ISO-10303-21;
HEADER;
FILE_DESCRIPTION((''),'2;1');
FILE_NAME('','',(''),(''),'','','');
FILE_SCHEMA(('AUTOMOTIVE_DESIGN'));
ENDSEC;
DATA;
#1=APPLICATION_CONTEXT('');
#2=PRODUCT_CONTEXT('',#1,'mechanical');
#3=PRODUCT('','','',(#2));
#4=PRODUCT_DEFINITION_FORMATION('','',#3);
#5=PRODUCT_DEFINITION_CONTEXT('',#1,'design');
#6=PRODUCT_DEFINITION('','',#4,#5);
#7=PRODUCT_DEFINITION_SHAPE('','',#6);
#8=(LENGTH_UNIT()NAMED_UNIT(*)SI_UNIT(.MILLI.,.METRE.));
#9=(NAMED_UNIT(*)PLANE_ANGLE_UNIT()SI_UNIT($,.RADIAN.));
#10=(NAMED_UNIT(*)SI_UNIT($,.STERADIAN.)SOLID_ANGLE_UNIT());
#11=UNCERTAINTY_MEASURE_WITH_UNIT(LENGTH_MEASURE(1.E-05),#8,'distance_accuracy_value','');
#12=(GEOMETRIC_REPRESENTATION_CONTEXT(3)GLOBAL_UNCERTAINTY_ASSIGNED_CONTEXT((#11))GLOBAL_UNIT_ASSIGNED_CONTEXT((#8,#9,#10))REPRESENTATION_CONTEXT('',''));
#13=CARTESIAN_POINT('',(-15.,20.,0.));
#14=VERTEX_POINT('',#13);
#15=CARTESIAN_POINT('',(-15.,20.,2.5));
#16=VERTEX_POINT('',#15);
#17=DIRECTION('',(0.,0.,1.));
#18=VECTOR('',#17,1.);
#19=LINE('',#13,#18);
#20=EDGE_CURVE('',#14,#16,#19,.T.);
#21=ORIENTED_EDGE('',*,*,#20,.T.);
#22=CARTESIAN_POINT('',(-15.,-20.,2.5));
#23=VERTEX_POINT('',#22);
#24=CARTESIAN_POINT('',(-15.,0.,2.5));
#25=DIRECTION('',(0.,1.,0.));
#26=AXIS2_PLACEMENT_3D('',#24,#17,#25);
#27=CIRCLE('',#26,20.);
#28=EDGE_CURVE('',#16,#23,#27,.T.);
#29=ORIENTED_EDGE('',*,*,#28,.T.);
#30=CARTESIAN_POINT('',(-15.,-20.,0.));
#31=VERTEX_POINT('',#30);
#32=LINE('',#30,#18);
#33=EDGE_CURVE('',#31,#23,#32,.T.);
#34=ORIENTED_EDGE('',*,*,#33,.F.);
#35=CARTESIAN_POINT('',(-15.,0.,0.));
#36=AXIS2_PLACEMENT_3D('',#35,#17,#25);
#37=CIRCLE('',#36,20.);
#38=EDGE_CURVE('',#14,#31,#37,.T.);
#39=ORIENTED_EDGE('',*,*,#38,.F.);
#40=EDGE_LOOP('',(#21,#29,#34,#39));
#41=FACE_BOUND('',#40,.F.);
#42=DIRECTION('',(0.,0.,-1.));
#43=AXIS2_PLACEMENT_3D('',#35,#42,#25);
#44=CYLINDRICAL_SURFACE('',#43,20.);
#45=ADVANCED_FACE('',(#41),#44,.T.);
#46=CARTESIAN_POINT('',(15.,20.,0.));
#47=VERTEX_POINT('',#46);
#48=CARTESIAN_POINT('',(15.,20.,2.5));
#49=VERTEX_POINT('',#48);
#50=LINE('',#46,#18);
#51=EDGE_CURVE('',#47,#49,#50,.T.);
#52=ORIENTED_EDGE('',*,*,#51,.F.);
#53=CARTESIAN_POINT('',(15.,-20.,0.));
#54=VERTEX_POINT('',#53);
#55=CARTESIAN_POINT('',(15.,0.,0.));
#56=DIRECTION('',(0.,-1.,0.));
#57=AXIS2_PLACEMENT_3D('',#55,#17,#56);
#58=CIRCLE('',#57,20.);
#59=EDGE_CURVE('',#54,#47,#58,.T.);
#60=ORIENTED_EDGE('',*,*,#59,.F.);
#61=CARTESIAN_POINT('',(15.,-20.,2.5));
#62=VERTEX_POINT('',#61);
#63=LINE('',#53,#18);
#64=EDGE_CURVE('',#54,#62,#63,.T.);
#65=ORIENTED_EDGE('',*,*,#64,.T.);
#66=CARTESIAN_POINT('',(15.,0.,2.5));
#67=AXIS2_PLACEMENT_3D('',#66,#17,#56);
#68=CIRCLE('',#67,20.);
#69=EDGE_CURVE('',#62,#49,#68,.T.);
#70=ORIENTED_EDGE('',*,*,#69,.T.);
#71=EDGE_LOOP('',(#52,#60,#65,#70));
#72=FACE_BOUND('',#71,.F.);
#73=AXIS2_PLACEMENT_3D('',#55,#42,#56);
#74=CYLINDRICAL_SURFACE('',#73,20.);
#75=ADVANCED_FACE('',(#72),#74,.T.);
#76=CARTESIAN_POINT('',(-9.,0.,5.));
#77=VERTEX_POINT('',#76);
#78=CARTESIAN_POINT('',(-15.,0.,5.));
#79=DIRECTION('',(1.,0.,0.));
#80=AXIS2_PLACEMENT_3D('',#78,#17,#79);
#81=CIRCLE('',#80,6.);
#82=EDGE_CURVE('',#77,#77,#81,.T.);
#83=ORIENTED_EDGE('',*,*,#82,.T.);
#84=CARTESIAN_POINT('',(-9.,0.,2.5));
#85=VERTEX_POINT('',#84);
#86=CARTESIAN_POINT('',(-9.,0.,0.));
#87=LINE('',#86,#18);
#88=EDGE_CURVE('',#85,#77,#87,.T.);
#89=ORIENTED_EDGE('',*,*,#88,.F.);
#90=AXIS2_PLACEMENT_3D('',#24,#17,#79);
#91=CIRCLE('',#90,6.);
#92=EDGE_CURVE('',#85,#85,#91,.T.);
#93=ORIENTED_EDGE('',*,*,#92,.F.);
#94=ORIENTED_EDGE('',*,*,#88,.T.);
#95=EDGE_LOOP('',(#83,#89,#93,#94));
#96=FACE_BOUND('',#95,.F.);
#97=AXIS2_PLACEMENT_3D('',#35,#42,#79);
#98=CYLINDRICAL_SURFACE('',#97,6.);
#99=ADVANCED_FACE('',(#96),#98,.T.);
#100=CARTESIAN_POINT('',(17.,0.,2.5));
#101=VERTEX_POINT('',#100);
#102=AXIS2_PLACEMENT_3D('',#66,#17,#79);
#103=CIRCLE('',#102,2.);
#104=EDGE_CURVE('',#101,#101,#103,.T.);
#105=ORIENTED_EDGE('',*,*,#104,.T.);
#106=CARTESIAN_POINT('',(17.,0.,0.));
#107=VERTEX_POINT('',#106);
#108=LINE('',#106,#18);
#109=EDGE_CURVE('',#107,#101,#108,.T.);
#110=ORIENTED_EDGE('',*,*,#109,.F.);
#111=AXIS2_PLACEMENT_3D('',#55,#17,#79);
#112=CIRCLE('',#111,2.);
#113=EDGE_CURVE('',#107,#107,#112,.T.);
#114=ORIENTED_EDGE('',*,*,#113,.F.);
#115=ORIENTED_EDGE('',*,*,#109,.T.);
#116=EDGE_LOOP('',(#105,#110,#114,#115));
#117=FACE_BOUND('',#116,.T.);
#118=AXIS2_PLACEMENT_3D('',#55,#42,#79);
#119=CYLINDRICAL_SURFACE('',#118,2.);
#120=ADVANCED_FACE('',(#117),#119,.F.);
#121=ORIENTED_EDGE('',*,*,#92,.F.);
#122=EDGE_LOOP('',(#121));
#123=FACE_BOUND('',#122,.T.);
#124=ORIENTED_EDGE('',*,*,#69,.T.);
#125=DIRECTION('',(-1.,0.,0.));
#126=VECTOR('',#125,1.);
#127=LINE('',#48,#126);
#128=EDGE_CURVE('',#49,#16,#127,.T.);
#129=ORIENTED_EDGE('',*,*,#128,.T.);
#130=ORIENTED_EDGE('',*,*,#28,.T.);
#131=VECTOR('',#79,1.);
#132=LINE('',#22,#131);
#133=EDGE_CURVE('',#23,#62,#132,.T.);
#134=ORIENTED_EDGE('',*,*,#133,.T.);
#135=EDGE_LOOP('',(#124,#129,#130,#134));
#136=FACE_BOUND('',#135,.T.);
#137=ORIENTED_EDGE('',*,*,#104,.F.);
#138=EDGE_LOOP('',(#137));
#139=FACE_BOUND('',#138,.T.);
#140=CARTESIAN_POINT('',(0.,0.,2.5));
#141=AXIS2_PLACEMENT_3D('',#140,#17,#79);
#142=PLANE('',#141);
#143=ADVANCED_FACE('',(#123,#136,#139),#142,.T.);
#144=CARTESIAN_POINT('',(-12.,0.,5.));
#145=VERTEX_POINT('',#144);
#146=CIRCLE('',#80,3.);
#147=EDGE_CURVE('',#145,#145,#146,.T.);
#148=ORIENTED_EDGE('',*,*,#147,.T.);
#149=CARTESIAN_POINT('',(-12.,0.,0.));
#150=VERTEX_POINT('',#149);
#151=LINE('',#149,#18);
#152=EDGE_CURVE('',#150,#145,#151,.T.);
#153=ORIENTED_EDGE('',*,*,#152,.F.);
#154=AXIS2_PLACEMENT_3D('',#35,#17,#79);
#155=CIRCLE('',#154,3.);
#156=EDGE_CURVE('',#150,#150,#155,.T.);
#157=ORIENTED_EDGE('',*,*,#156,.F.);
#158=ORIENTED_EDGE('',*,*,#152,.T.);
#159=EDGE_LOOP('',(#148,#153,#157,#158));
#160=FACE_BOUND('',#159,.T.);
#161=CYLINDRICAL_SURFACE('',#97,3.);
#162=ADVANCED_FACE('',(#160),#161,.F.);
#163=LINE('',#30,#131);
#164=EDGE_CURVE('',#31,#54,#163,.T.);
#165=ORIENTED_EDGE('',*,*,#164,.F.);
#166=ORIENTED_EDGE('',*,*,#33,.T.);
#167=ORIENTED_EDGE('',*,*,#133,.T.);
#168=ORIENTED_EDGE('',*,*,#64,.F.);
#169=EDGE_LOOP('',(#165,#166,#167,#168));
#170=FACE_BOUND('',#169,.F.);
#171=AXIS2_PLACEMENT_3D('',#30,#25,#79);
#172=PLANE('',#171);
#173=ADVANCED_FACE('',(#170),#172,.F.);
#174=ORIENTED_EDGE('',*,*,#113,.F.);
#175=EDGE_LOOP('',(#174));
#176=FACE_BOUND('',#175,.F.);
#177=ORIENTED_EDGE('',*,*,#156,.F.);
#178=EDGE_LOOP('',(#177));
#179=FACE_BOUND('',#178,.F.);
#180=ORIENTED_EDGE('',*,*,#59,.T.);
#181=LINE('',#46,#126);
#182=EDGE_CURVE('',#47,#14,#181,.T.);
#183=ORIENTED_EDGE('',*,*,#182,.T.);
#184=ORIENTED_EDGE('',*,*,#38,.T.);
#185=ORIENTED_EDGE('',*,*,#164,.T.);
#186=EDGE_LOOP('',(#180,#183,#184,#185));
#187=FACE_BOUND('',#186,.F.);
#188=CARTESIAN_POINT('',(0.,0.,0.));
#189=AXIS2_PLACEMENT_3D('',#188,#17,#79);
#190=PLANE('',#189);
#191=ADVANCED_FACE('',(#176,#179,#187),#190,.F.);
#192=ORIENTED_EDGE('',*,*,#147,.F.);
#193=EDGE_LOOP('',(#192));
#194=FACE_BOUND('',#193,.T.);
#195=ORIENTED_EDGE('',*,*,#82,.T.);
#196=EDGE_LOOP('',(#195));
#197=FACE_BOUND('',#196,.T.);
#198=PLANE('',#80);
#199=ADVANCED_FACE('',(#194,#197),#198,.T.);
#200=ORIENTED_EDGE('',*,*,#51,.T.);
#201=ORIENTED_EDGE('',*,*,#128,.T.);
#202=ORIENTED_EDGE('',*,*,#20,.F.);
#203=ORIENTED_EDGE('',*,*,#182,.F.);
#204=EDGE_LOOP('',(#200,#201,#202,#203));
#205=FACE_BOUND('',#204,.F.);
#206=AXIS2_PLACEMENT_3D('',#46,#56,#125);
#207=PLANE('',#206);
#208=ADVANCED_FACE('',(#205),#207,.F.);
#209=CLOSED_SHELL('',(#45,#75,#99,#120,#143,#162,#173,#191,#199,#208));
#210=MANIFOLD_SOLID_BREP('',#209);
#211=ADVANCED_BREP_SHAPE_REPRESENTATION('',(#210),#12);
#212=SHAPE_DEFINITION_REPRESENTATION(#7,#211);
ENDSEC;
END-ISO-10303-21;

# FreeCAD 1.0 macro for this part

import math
import FreeCAD as App
import Part
import Sketcher

V = App.Vector

doc = App.newDocument("Part")
params = doc.addObject("Spreadsheet::Sheet", "Params")
for row, (alias, value) in enumerate([
    ("sketch1_diameter", "12 mm"),
    ("sketch1_diameter2", "4 mm"),
    ("sketch1_radius", "20 mm"),
    ("sketch1_width", "30 mm"),
    ("pad1_length", "2.5 mm"),
    ("sketch2_diameter", "12 mm"),
    ("sketch2_diameter2", "6 mm"),
    ("pad2_length", "5 mm"),
], start=1):
    params.set(f"A{row}", alias)
    params.set(f"B{row}", "=" + value)
    params.setAlias(f"B{row}", alias)

body = doc.addObject("PartDesign::Body", "Body")

# Sketch on XY plane
sketch1 = body.newObject("Sketcher::SketchObject", "Sketch")
sketch1.AttachmentSupport = (doc.getObject("XY_Plane"), [""])
sketch1.MapMode = "FlatFace"
sketch1.addGeometry(Part.LineSegment(V(15, 20, 0), V(-15, 20, 0)), False)
sketch1.addGeometry(Part.ArcOfCircle(Part.Circle(V(-15, 0, 0), V(0, 0, 1), 20), math.radians(90), math.radians(270)), False)
sketch1.addGeometry(Part.LineSegment(V(-15, -20, 0), V(15, -20, 0)), False)
sketch1.addGeometry(Part.ArcOfCircle(Part.Circle(V(15, 0, 0), V(0, 0, 1), 20), math.radians(-90), math.radians(90)), False)
sketch1.addGeometry(Part.Circle(V(-15, 0, 0), V(0, 0, 1), 6), False)
sketch1.addGeometry(Part.Circle(V(15, 0, 0), V(0, 0, 1), 2), False)
sketch1.addConstraint(Sketcher.Constraint("Tangent", 0, 2, 1, 1))
sketch1.addConstraint(Sketcher.Constraint("Tangent", 1, 2, 2, 1))
sketch1.addConstraint(Sketcher.Constraint("Tangent", 2, 2, 3, 1))
sketch1.addConstraint(Sketcher.Constraint("Tangent", 3, 2, 0, 1))
sketch1.addConstraint(Sketcher.Constraint("Horizontal", 0))
sketch1.addConstraint(Sketcher.Constraint("Horizontal", 2))
sketch1.addConstraint(Sketcher.Constraint("Coincident", 4, 3, 1, 3))
sketch1.addConstraint(Sketcher.Constraint("Coincident", 5, 3, 3, 3))
sketch1.addConstraint(Sketcher.Constraint("Symmetric", 1, 3, 3, 3, -1, 1))
sketch1.addConstraint(Sketcher.Constraint("Diameter", 4, 12.0))
sketch1.addConstraint(Sketcher.Constraint("Diameter", 5, 4.0))
sketch1.addConstraint(Sketcher.Constraint("Radius", 1, 20.0))
sketch1.addConstraint(Sketcher.Constraint("DistanceX", 0, 2, 0, 1, 30.0))
sketch1.setExpression("Constraints[9]", "Params.sketch1_diameter")
sketch1.setExpression("Constraints[10]", "Params.sketch1_diameter2")
sketch1.setExpression("Constraints[11]", "Params.sketch1_radius")
sketch1.setExpression("Constraints[12]", "Params.sketch1_width")
pad1 = body.newObject("PartDesign::Pad", "Pad")
pad1.Profile = sketch1
pad1.setExpression("Length", "Params.pad1_length")

# Sketch on XY plane
sketch2 = body.newObject("Sketcher::SketchObject", "Sketch001")
sketch2.AttachmentSupport = (doc.getObject("XY_Plane"), [""])
sketch2.MapMode = "FlatFace"
sketch2.addGeometry(Part.Circle(V(-15, 0, 0), V(0, 0, 1), 6), False)
sketch2.addGeometry(Part.Circle(V(-15, 0, 0), V(0, 0, 1), 3), False)
sketch2.addConstraint(Sketcher.Constraint("Coincident", 1, 3, 0, 3))
sketch2.addConstraint(Sketcher.Constraint("PointOnObject", 0, 3, -1))
sketch2.addConstraint(Sketcher.Constraint("Diameter", 0, 12.0))
sketch2.addConstraint(Sketcher.Constraint("Diameter", 1, 6.0))
sketch2.addConstraint(Sketcher.Constraint("DistanceX", 0, 3, -1, 1, 15.0))
sketch2.setExpression("Constraints[2]", "Params.sketch2_diameter")
sketch2.setExpression("Constraints[3]", "Params.sketch2_diameter2")
pad2 = body.newObject("PartDesign::Pad", "Pad001")
pad2.Profile = sketch2
pad2.setExpression("Length", "Params.pad2_length")

doc.recompute()
